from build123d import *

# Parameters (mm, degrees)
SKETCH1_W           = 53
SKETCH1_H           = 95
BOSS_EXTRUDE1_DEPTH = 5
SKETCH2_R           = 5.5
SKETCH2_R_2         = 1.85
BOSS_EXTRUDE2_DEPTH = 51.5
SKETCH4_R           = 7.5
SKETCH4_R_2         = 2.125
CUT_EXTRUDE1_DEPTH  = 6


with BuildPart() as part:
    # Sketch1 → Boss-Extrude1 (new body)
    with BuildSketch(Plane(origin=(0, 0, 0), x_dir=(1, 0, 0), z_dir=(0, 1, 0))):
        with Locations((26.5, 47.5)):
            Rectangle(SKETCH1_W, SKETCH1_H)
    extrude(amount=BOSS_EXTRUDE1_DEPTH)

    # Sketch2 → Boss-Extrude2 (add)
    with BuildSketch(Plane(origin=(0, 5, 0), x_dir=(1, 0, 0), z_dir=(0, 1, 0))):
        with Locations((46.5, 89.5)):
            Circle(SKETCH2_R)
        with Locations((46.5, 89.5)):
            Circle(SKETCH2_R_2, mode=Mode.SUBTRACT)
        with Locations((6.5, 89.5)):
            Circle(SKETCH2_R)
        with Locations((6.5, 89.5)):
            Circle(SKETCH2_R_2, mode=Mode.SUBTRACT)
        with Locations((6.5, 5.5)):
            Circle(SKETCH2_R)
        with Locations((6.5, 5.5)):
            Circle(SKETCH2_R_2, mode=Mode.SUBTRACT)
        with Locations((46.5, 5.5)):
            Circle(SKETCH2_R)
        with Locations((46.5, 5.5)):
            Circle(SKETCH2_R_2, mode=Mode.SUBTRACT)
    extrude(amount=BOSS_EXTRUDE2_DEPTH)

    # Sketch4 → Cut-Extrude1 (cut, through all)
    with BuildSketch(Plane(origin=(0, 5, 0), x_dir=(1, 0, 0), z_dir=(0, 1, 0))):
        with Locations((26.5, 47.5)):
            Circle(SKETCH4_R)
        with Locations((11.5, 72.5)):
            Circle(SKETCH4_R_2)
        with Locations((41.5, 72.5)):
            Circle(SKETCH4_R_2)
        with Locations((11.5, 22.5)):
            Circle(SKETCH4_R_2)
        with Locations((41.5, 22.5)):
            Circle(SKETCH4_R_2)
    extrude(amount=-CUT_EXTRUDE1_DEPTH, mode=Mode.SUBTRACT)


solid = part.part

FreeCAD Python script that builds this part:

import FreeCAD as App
import Part
import Sketcher
Q = App.Units.Quantity


def add_polygon(sketch, points):
    """Adds a closed chain of lines whose ends are joined by coincident constraints."""
    first, n = sketch.GeometryCount, len(points)
    for a, b in zip(points, points[1:] + points[:1]):
        sketch.addGeometry(Part.LineSegment(App.Vector(*a, 0), App.Vector(*b, 0)), False)
    for i in range(n):
        sketch.addConstraint(Sketcher.Constraint("Coincident", first + i, 2, first + (i + 1) % n, 1))

doc = App.newDocument("Part")
body = doc.addObject("PartDesign::Body", "Body")

sketch1 = body.newObject("Sketcher::SketchObject", "Sketch")
sketch1.AttachmentSupport = (doc.getObject("XZ_Plane"), [""])
sketch1.MapMode = "FlatFace"
add_polygon(sketch1, [(0, -95), (0, 0), (53, 0), (53, -95)])
sketch1.addConstraint([
    Sketcher.Constraint("Vertical", 0),
    Sketcher.Constraint("Horizontal", 1),
    Sketcher.Constraint("Vertical", 2),
    Sketcher.Constraint("Horizontal", 3),
    Sketcher.Constraint("Coincident", 0, 2, -1, 1),
    Sketcher.Constraint("DistanceX", 1, 1, 1, 2, Q("53 mm")),
    Sketcher.Constraint("DistanceY", 0, 1, 0, 2, Q("95 mm")),
])
pad1 = body.newObject("PartDesign::Pad", "Pad")
pad1.Profile = sketch1
pad1.Length = 5
pad1.Reversed = True

sketch2 = body.newObject("Sketcher::SketchObject", "Sketch001")
sketch2.AttachmentSupport = (doc.getObject("XZ_Plane"), [""])
sketch2.MapMode = "FlatFace"
sketch2.AttachmentOffset = App.Placement(App.Vector(0, 0, -5), App.Rotation())
sketch2.addGeometry([
    Part.Circle(App.Vector(46.5, -89.5, 0), App.Vector(0, 0, 1), 5.5),
    Part.Circle(App.Vector(46.5, -89.5, 0), App.Vector(0, 0, 1), 1.9),
    Part.Circle(App.Vector(6.5, -89.5, 0), App.Vector(0, 0, 1), 5.5),
    Part.Circle(App.Vector(6.5, -89.5, 0), App.Vector(0, 0, 1), 1.9),
    Part.Circle(App.Vector(6.5, -5.5, 0), App.Vector(0, 0, 1), 5.5),
    Part.Circle(App.Vector(6.5, -5.5, 0), App.Vector(0, 0, 1), 1.9),
    Part.Circle(App.Vector(46.5, -5.5, 0), App.Vector(0, 0, 1), 5.5),
    Part.Circle(App.Vector(46.5, -5.5, 0), App.Vector(0, 0, 1), 1.9),
], False)
sketch2.addConstraint([
    Sketcher.Constraint("Coincident", 1, 3, 0, 3),
    Sketcher.Constraint("Coincident", 3, 3, 2, 3),
    Sketcher.Constraint("Coincident", 5, 3, 4, 3),
    Sketcher.Constraint("Coincident", 7, 3, 6, 3),
    Sketcher.Constraint("Equal", 0, 2),
    Sketcher.Constraint("Equal", 1, 3),
    Sketcher.Constraint("Equal", 2, 4),
    Sketcher.Constraint("Equal", 3, 5),
    Sketcher.Constraint("Equal", 4, 6),
    Sketcher.Constraint("Equal", 5, 7),
    Sketcher.Constraint("Horizontal", 1, 3, 2, 3),
    Sketcher.Constraint("Horizontal", 5, 3, 6, 3),
    Sketcher.Constraint("Vertical", 3, 3, 4, 3),
    Sketcher.Constraint("Vertical", 1, 3, 6, 3),
    Sketcher.Constraint("Diameter", 0, Q("11 mm")),
    Sketcher.Constraint("Diameter", 1, Q("3.7 mm")),
    Sketcher.Constraint("DistanceX", 2, 3, 0, 3, Q("40 mm")),
    Sketcher.Constraint("DistanceY", 2, 3, 4, 3, Q("84 mm")),
    Sketcher.Constraint("DistanceX", -1, 1, 0, 3, Q("46.5 mm")),
    Sketcher.Constraint("DistanceY", 0, 3, -1, 1, Q("89.5 mm")),
])
pad2 = body.newObject("PartDesign::Pad", "Pad001")
pad2.Profile = sketch2
pad2.Length = 51.5
pad2.Reversed = True

sketch3 = body.newObject("Sketcher::SketchObject", "Sketch002")
sketch3.AttachmentSupport = (doc.getObject("XZ_Plane"), [""])
sketch3.MapMode = "FlatFace"
sketch3.AttachmentOffset = App.Placement(App.Vector(0, 0, -5), App.Rotation())
sketch3.addGeometry([
    Part.Circle(App.Vector(26.5, -47.5, 0), App.Vector(0, 0, 1), 7.5),
    Part.Circle(App.Vector(11.5, -72.5, 0), App.Vector(0, 0, 1), 2.1),
    Part.Circle(App.Vector(41.5, -72.5, 0), App.Vector(0, 0, 1), 2.1),
    Part.Circle(App.Vector(11.5, -22.5, 0), App.Vector(0, 0, 1), 2.1),
    Part.Circle(App.Vector(41.5, -22.5, 0), App.Vector(0, 0, 1), 2.1),
], False)
sketch3.addConstraint([
    Sketcher.Constraint("Equal", 1, 2),
    Sketcher.Constraint("Equal", 2, 3),
    Sketcher.Constraint("Equal", 3, 4),
    Sketcher.Constraint("Horizontal", 1, 3, 2, 3),
    Sketcher.Constraint("Horizontal", 3, 3, 4, 3),
    Sketcher.Constraint("Vertical", 1, 3, 3, 3),
    Sketcher.Constraint("Vertical", 2, 3, 4, 3),
    Sketcher.Constraint("Diameter", 0, Q("15 mm")),
    Sketcher.Constraint("Diameter", 1, Q("4.25 mm")),
    Sketcher.Constraint("DistanceX", 1, 3, 0, 3, Q("15 mm")),
    Sketcher.Constraint("DistanceY", 1, 3, 0, 3, Q("25 mm")),
    Sketcher.Constraint("DistanceX", 0, 3, 2, 3, Q("15 mm")),
    Sketcher.Constraint("DistanceY", 0, 3, 3, 3, Q("25 mm")),
    Sketcher.Constraint("DistanceX", -1, 1, 0, 3, Q("26.5 mm")),
    Sketcher.Constraint("DistanceY", 0, 3, -1, 1, Q("47.5 mm")),
])
pocket1 = body.newObject("PartDesign::Pocket", "Pocket")
pocket1.Profile = sketch3
pocket1.Type = "ThroughAll"
pocket1.Reversed = True

doc.recompute()
